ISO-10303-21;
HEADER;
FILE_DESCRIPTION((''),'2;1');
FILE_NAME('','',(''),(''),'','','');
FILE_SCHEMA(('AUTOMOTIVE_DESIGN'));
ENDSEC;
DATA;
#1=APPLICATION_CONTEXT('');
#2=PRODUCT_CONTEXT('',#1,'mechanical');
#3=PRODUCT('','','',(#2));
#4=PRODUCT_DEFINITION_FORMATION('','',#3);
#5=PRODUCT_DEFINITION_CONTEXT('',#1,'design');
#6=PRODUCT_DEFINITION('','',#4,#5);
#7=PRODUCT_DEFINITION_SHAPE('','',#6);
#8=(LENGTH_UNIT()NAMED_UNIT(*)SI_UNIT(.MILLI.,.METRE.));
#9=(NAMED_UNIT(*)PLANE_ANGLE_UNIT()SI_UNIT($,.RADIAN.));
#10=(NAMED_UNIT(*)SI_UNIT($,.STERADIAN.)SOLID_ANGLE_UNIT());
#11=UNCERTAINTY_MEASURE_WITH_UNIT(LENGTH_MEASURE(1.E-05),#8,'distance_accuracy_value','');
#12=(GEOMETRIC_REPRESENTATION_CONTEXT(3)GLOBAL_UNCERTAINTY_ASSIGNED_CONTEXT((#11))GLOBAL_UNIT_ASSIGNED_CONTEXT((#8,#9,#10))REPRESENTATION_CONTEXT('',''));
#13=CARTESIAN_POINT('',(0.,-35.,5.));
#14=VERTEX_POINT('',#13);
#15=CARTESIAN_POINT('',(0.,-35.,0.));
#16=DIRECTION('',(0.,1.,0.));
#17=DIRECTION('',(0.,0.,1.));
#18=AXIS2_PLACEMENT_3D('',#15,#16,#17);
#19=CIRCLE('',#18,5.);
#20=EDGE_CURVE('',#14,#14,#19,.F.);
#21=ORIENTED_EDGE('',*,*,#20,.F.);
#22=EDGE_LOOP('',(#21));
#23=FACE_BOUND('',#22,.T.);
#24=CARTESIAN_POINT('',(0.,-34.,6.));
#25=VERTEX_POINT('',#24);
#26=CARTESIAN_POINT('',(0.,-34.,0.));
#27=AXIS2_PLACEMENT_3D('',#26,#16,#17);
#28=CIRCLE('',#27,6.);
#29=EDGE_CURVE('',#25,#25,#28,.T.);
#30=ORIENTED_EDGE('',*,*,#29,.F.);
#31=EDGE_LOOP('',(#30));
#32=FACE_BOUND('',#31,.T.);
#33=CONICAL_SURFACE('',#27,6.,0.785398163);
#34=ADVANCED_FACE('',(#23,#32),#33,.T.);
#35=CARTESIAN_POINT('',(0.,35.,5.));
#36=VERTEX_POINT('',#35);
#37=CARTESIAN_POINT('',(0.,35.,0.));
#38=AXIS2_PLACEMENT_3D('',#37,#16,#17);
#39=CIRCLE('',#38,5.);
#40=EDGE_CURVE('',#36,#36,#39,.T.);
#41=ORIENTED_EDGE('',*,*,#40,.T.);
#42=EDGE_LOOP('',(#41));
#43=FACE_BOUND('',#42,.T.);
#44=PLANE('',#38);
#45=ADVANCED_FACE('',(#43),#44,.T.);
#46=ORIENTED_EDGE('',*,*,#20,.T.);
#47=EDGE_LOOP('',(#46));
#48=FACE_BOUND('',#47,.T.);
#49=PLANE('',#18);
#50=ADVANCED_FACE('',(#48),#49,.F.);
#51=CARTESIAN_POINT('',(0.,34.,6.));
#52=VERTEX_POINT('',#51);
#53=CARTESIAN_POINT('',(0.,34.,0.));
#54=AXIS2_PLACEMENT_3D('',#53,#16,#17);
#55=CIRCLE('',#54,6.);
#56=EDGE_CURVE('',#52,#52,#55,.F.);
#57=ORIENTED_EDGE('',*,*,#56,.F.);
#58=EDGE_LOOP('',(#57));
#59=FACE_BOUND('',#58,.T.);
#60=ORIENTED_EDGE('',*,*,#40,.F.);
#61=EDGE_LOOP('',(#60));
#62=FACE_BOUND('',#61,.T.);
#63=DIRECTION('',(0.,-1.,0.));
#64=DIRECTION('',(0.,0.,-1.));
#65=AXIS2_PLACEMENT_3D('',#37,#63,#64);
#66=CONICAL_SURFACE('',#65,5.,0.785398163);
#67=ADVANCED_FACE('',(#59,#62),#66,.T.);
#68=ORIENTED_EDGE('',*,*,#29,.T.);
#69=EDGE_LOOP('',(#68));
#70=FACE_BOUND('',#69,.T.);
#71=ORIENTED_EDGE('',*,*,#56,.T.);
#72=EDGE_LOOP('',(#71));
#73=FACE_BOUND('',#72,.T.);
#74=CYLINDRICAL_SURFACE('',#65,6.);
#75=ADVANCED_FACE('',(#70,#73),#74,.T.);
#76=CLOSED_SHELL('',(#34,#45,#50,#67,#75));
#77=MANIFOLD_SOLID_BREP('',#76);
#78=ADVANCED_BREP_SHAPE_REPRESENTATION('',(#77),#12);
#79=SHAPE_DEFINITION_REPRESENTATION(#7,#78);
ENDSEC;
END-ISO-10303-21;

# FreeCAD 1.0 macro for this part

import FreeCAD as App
import Part
import Sketcher


def edges_at(feature, points):
    """Names of the edges that pass closest to the given points."""
    edges = feature.Shape.Edges
    near = lambda p: min(range(len(edges)), key=lambda i: edges[i].distToShape(Part.Vertex(*p))[0])
    return sorted({f"Edge{near(p) + 1}" for p in points})

doc = App.newDocument("Part")
body = doc.addObject("PartDesign::Body", "Body")

sketch1 = body.newObject("Sketcher::SketchObject", "Sketch")
sketch1.AttachmentSupport = (doc.getObject("XZ_Plane"), [""])
sketch1.MapMode = "FlatFace"
sketch1.addGeometry(Part.Circle(App.Vector(0, 0, 0), App.Vector(0, 0, 1), 6), False)
sketch1.addConstraint(Sketcher.Constraint("Coincident", 0, 3, -1, 1))
sketch1.addConstraint(Sketcher.Constraint("Diameter", 0, 12.0))
pad1 = body.newObject("PartDesign::Pad", "Pad")
pad1.Profile = sketch1
pad1.Length = 70
pad1.Midplane = True
doc.recompute()

chamfer = body.newObject("PartDesign::Chamfer", "Chamfer")
chamfer.Base = (pad1, edges_at(pad1, [(-6, -35, 0), (-6, 35, 0)]))
chamfer.Size = 1

doc.recompute()
